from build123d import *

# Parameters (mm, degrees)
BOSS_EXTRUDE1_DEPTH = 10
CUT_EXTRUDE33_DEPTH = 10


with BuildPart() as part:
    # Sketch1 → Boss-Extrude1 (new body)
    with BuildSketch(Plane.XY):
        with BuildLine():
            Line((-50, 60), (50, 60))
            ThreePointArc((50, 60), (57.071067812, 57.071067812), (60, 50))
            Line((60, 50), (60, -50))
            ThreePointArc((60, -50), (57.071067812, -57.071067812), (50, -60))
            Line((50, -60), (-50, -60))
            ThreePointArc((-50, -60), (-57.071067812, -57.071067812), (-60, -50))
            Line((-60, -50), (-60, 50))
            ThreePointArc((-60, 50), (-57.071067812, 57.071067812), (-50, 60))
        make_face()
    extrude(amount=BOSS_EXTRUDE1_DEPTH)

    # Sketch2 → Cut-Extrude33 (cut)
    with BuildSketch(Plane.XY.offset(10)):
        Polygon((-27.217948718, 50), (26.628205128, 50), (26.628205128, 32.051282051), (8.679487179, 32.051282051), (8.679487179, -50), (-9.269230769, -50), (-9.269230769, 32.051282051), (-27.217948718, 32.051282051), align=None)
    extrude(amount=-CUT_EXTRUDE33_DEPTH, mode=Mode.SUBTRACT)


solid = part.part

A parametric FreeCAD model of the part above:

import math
import FreeCAD as App
import Part
import Sketcher

V = App.Vector
Q = App.Units.Quantity


def add_polygon(sketch, points):
    """Adds a closed chain of lines whose ends are joined by coincident constraints."""
    first, n = sketch.GeometryCount, len(points)
    for a, b in zip(points, points[1:] + points[:1]):
        sketch.addGeometry(Part.LineSegment(App.Vector(*a, 0), App.Vector(*b, 0)), False)
    for i in range(n):
        sketch.addConstraint(Sketcher.Constraint("Coincident", first + i, 2, first + (i + 1) % n, 1))

doc = App.newDocument("Part")
params = doc.addObject("Spreadsheet::Sheet", "Params")
for row, (alias, value) in enumerate([
    ("sketch1_radius", "10 mm"),
    ("sketch1_width", "100 mm"),
    ("pad1_length", "10 mm"),
    ("pocket1_length", "10 mm"),
], start=1):
    params.set(f"A{row}", alias)
    params.set(f"B{row}", "=" + value)
    params.setAlias(f"B{row}", alias)

body = doc.addObject("PartDesign::Body", "Body")

sketch1 = doc.addObject("Sketcher::SketchObject", "Sketch")
body.addObject(sketch1)
sketch1.AttachmentSupport = (doc.XY_Plane, [""])
sketch1.MapMode = "FlatFace"
sketch1.addGeometry([
    Part.LineSegment(V(50, 60, 0), V(-50, 60, 0)),
    Part.ArcOfCircle(Part.Circle(V(-50, 50, 0), V(0, 0, 1), 10), math.radians(90), math.radians(180)),
    Part.LineSegment(V(-60, 50, 0), V(-60, -50, 0)),
    Part.ArcOfCircle(Part.Circle(V(-50, -50, 0), V(0, 0, 1), 10), math.radians(180), math.radians(270)),
    Part.LineSegment(V(-50, -60, 0), V(50, -60, 0)),
    Part.ArcOfCircle(Part.Circle(V(50, -50, 0), V(0, 0, 1), 10), math.radians(-90), math.radians(0)),
    Part.LineSegment(V(60, -50, 0), V(60, 50, 0)),
    Part.ArcOfCircle(Part.Circle(V(50, 50, 0), V(0, 0, 1), 10), math.radians(0), math.radians(90)),
], False)
sketch1.addConstraint([
    Sketcher.Constraint("Tangent", 0, 2, 1, 1),
    Sketcher.Constraint("Tangent", 1, 2, 2, 1),
    Sketcher.Constraint("Tangent", 2, 2, 3, 1),
    Sketcher.Constraint("Tangent", 3, 2, 4, 1),
    Sketcher.Constraint("Tangent", 4, 2, 5, 1),
    Sketcher.Constraint("Tangent", 5, 2, 6, 1),
    Sketcher.Constraint("Tangent", 6, 2, 7, 1),
    Sketcher.Constraint("Tangent", 7, 2, 0, 1),
    Sketcher.Constraint("Horizontal", 0),
    Sketcher.Constraint("Vertical", 2),
    Sketcher.Constraint("Horizontal", 4),
    Sketcher.Constraint("Vertical", 6),
    Sketcher.Constraint("Equal", 1, 3),
    Sketcher.Constraint("Equal", 3, 5),
    Sketcher.Constraint("Equal", 5, 7),
    Sketcher.Constraint("Symmetric", 1, 3, 5, 3, -1, 1),
    Sketcher.Constraint("Equal", 4, 2),
    Sketcher.Constraint("Radius", 1, Q("10 mm")),
    Sketcher.Constraint("DistanceX", 0, 2, 0, 1, Q("100 mm")),
])
sketch1.setExpression("Constraints[17]", "Params.sketch1_radius")
sketch1.setExpression("Constraints[18]", "Params.sketch1_width")
pad1 = doc.addObject("PartDesign::Pad", "Pad")
body.addObject(pad1)
pad1.Profile = sketch1
pad1.setExpression("Length", "Params.pad1_length")

sketch2 = doc.addObject("Sketcher::SketchObject", "Sketch001")
body.addObject(sketch2)
sketch2.AttachmentSupport = (doc.XY_Plane, [""])
sketch2.MapMode = "FlatFace"
sketch2.AttachmentOffset = App.Placement(V(0, 0, 10), App.Rotation())
add_polygon(sketch2, [(27, 50), (-27, 50), (-27, 32), (-9, 32), (-9, -50), (9, -50), (9, 32), (27, 32)])
sketch2.addConstraint([
    Sketcher.Constraint("Horizontal", 0),
    Sketcher.Constraint("Vertical", 1),
    Sketcher.Constraint("Horizontal", 2),
    Sketcher.Constraint("Vertical", 3),
    Sketcher.Constraint("Horizontal", 4),
    Sketcher.Constraint("Vertical", 5),
    Sketcher.Constraint("Horizontal", 6),
    Sketcher.Constraint("Vertical", 7),
    Sketcher.Constraint("Horizontal", 2, 2, 5, 2),
    Sketcher.Constraint("Equal", 2, 4),
    Sketcher.Constraint("Equal", 4, 6),
    Sketcher.Constraint("Equal", 6, 1),
    Sketcher.Constraint("DistanceY", -1, 1, 0, 2, Q("50 mm")),
    Sketcher.Constraint("DistanceY", 3, 2, -1, 1, Q("50 mm")),
    Sketcher.Constraint("DistanceX", 0, 2, 0, 1, Q("53.846154 mm")),
    Sketcher.Constraint("DistanceX", 0, 2, -1, 1, Q("27.217949 mm")),
])
pocket1 = doc.addObject("PartDesign::Pocket", "Pocket")
body.addObject(pocket1)
pocket1.Profile = sketch2
pocket1.setExpression("Length", "Params.pocket1_length")

doc.recompute()
